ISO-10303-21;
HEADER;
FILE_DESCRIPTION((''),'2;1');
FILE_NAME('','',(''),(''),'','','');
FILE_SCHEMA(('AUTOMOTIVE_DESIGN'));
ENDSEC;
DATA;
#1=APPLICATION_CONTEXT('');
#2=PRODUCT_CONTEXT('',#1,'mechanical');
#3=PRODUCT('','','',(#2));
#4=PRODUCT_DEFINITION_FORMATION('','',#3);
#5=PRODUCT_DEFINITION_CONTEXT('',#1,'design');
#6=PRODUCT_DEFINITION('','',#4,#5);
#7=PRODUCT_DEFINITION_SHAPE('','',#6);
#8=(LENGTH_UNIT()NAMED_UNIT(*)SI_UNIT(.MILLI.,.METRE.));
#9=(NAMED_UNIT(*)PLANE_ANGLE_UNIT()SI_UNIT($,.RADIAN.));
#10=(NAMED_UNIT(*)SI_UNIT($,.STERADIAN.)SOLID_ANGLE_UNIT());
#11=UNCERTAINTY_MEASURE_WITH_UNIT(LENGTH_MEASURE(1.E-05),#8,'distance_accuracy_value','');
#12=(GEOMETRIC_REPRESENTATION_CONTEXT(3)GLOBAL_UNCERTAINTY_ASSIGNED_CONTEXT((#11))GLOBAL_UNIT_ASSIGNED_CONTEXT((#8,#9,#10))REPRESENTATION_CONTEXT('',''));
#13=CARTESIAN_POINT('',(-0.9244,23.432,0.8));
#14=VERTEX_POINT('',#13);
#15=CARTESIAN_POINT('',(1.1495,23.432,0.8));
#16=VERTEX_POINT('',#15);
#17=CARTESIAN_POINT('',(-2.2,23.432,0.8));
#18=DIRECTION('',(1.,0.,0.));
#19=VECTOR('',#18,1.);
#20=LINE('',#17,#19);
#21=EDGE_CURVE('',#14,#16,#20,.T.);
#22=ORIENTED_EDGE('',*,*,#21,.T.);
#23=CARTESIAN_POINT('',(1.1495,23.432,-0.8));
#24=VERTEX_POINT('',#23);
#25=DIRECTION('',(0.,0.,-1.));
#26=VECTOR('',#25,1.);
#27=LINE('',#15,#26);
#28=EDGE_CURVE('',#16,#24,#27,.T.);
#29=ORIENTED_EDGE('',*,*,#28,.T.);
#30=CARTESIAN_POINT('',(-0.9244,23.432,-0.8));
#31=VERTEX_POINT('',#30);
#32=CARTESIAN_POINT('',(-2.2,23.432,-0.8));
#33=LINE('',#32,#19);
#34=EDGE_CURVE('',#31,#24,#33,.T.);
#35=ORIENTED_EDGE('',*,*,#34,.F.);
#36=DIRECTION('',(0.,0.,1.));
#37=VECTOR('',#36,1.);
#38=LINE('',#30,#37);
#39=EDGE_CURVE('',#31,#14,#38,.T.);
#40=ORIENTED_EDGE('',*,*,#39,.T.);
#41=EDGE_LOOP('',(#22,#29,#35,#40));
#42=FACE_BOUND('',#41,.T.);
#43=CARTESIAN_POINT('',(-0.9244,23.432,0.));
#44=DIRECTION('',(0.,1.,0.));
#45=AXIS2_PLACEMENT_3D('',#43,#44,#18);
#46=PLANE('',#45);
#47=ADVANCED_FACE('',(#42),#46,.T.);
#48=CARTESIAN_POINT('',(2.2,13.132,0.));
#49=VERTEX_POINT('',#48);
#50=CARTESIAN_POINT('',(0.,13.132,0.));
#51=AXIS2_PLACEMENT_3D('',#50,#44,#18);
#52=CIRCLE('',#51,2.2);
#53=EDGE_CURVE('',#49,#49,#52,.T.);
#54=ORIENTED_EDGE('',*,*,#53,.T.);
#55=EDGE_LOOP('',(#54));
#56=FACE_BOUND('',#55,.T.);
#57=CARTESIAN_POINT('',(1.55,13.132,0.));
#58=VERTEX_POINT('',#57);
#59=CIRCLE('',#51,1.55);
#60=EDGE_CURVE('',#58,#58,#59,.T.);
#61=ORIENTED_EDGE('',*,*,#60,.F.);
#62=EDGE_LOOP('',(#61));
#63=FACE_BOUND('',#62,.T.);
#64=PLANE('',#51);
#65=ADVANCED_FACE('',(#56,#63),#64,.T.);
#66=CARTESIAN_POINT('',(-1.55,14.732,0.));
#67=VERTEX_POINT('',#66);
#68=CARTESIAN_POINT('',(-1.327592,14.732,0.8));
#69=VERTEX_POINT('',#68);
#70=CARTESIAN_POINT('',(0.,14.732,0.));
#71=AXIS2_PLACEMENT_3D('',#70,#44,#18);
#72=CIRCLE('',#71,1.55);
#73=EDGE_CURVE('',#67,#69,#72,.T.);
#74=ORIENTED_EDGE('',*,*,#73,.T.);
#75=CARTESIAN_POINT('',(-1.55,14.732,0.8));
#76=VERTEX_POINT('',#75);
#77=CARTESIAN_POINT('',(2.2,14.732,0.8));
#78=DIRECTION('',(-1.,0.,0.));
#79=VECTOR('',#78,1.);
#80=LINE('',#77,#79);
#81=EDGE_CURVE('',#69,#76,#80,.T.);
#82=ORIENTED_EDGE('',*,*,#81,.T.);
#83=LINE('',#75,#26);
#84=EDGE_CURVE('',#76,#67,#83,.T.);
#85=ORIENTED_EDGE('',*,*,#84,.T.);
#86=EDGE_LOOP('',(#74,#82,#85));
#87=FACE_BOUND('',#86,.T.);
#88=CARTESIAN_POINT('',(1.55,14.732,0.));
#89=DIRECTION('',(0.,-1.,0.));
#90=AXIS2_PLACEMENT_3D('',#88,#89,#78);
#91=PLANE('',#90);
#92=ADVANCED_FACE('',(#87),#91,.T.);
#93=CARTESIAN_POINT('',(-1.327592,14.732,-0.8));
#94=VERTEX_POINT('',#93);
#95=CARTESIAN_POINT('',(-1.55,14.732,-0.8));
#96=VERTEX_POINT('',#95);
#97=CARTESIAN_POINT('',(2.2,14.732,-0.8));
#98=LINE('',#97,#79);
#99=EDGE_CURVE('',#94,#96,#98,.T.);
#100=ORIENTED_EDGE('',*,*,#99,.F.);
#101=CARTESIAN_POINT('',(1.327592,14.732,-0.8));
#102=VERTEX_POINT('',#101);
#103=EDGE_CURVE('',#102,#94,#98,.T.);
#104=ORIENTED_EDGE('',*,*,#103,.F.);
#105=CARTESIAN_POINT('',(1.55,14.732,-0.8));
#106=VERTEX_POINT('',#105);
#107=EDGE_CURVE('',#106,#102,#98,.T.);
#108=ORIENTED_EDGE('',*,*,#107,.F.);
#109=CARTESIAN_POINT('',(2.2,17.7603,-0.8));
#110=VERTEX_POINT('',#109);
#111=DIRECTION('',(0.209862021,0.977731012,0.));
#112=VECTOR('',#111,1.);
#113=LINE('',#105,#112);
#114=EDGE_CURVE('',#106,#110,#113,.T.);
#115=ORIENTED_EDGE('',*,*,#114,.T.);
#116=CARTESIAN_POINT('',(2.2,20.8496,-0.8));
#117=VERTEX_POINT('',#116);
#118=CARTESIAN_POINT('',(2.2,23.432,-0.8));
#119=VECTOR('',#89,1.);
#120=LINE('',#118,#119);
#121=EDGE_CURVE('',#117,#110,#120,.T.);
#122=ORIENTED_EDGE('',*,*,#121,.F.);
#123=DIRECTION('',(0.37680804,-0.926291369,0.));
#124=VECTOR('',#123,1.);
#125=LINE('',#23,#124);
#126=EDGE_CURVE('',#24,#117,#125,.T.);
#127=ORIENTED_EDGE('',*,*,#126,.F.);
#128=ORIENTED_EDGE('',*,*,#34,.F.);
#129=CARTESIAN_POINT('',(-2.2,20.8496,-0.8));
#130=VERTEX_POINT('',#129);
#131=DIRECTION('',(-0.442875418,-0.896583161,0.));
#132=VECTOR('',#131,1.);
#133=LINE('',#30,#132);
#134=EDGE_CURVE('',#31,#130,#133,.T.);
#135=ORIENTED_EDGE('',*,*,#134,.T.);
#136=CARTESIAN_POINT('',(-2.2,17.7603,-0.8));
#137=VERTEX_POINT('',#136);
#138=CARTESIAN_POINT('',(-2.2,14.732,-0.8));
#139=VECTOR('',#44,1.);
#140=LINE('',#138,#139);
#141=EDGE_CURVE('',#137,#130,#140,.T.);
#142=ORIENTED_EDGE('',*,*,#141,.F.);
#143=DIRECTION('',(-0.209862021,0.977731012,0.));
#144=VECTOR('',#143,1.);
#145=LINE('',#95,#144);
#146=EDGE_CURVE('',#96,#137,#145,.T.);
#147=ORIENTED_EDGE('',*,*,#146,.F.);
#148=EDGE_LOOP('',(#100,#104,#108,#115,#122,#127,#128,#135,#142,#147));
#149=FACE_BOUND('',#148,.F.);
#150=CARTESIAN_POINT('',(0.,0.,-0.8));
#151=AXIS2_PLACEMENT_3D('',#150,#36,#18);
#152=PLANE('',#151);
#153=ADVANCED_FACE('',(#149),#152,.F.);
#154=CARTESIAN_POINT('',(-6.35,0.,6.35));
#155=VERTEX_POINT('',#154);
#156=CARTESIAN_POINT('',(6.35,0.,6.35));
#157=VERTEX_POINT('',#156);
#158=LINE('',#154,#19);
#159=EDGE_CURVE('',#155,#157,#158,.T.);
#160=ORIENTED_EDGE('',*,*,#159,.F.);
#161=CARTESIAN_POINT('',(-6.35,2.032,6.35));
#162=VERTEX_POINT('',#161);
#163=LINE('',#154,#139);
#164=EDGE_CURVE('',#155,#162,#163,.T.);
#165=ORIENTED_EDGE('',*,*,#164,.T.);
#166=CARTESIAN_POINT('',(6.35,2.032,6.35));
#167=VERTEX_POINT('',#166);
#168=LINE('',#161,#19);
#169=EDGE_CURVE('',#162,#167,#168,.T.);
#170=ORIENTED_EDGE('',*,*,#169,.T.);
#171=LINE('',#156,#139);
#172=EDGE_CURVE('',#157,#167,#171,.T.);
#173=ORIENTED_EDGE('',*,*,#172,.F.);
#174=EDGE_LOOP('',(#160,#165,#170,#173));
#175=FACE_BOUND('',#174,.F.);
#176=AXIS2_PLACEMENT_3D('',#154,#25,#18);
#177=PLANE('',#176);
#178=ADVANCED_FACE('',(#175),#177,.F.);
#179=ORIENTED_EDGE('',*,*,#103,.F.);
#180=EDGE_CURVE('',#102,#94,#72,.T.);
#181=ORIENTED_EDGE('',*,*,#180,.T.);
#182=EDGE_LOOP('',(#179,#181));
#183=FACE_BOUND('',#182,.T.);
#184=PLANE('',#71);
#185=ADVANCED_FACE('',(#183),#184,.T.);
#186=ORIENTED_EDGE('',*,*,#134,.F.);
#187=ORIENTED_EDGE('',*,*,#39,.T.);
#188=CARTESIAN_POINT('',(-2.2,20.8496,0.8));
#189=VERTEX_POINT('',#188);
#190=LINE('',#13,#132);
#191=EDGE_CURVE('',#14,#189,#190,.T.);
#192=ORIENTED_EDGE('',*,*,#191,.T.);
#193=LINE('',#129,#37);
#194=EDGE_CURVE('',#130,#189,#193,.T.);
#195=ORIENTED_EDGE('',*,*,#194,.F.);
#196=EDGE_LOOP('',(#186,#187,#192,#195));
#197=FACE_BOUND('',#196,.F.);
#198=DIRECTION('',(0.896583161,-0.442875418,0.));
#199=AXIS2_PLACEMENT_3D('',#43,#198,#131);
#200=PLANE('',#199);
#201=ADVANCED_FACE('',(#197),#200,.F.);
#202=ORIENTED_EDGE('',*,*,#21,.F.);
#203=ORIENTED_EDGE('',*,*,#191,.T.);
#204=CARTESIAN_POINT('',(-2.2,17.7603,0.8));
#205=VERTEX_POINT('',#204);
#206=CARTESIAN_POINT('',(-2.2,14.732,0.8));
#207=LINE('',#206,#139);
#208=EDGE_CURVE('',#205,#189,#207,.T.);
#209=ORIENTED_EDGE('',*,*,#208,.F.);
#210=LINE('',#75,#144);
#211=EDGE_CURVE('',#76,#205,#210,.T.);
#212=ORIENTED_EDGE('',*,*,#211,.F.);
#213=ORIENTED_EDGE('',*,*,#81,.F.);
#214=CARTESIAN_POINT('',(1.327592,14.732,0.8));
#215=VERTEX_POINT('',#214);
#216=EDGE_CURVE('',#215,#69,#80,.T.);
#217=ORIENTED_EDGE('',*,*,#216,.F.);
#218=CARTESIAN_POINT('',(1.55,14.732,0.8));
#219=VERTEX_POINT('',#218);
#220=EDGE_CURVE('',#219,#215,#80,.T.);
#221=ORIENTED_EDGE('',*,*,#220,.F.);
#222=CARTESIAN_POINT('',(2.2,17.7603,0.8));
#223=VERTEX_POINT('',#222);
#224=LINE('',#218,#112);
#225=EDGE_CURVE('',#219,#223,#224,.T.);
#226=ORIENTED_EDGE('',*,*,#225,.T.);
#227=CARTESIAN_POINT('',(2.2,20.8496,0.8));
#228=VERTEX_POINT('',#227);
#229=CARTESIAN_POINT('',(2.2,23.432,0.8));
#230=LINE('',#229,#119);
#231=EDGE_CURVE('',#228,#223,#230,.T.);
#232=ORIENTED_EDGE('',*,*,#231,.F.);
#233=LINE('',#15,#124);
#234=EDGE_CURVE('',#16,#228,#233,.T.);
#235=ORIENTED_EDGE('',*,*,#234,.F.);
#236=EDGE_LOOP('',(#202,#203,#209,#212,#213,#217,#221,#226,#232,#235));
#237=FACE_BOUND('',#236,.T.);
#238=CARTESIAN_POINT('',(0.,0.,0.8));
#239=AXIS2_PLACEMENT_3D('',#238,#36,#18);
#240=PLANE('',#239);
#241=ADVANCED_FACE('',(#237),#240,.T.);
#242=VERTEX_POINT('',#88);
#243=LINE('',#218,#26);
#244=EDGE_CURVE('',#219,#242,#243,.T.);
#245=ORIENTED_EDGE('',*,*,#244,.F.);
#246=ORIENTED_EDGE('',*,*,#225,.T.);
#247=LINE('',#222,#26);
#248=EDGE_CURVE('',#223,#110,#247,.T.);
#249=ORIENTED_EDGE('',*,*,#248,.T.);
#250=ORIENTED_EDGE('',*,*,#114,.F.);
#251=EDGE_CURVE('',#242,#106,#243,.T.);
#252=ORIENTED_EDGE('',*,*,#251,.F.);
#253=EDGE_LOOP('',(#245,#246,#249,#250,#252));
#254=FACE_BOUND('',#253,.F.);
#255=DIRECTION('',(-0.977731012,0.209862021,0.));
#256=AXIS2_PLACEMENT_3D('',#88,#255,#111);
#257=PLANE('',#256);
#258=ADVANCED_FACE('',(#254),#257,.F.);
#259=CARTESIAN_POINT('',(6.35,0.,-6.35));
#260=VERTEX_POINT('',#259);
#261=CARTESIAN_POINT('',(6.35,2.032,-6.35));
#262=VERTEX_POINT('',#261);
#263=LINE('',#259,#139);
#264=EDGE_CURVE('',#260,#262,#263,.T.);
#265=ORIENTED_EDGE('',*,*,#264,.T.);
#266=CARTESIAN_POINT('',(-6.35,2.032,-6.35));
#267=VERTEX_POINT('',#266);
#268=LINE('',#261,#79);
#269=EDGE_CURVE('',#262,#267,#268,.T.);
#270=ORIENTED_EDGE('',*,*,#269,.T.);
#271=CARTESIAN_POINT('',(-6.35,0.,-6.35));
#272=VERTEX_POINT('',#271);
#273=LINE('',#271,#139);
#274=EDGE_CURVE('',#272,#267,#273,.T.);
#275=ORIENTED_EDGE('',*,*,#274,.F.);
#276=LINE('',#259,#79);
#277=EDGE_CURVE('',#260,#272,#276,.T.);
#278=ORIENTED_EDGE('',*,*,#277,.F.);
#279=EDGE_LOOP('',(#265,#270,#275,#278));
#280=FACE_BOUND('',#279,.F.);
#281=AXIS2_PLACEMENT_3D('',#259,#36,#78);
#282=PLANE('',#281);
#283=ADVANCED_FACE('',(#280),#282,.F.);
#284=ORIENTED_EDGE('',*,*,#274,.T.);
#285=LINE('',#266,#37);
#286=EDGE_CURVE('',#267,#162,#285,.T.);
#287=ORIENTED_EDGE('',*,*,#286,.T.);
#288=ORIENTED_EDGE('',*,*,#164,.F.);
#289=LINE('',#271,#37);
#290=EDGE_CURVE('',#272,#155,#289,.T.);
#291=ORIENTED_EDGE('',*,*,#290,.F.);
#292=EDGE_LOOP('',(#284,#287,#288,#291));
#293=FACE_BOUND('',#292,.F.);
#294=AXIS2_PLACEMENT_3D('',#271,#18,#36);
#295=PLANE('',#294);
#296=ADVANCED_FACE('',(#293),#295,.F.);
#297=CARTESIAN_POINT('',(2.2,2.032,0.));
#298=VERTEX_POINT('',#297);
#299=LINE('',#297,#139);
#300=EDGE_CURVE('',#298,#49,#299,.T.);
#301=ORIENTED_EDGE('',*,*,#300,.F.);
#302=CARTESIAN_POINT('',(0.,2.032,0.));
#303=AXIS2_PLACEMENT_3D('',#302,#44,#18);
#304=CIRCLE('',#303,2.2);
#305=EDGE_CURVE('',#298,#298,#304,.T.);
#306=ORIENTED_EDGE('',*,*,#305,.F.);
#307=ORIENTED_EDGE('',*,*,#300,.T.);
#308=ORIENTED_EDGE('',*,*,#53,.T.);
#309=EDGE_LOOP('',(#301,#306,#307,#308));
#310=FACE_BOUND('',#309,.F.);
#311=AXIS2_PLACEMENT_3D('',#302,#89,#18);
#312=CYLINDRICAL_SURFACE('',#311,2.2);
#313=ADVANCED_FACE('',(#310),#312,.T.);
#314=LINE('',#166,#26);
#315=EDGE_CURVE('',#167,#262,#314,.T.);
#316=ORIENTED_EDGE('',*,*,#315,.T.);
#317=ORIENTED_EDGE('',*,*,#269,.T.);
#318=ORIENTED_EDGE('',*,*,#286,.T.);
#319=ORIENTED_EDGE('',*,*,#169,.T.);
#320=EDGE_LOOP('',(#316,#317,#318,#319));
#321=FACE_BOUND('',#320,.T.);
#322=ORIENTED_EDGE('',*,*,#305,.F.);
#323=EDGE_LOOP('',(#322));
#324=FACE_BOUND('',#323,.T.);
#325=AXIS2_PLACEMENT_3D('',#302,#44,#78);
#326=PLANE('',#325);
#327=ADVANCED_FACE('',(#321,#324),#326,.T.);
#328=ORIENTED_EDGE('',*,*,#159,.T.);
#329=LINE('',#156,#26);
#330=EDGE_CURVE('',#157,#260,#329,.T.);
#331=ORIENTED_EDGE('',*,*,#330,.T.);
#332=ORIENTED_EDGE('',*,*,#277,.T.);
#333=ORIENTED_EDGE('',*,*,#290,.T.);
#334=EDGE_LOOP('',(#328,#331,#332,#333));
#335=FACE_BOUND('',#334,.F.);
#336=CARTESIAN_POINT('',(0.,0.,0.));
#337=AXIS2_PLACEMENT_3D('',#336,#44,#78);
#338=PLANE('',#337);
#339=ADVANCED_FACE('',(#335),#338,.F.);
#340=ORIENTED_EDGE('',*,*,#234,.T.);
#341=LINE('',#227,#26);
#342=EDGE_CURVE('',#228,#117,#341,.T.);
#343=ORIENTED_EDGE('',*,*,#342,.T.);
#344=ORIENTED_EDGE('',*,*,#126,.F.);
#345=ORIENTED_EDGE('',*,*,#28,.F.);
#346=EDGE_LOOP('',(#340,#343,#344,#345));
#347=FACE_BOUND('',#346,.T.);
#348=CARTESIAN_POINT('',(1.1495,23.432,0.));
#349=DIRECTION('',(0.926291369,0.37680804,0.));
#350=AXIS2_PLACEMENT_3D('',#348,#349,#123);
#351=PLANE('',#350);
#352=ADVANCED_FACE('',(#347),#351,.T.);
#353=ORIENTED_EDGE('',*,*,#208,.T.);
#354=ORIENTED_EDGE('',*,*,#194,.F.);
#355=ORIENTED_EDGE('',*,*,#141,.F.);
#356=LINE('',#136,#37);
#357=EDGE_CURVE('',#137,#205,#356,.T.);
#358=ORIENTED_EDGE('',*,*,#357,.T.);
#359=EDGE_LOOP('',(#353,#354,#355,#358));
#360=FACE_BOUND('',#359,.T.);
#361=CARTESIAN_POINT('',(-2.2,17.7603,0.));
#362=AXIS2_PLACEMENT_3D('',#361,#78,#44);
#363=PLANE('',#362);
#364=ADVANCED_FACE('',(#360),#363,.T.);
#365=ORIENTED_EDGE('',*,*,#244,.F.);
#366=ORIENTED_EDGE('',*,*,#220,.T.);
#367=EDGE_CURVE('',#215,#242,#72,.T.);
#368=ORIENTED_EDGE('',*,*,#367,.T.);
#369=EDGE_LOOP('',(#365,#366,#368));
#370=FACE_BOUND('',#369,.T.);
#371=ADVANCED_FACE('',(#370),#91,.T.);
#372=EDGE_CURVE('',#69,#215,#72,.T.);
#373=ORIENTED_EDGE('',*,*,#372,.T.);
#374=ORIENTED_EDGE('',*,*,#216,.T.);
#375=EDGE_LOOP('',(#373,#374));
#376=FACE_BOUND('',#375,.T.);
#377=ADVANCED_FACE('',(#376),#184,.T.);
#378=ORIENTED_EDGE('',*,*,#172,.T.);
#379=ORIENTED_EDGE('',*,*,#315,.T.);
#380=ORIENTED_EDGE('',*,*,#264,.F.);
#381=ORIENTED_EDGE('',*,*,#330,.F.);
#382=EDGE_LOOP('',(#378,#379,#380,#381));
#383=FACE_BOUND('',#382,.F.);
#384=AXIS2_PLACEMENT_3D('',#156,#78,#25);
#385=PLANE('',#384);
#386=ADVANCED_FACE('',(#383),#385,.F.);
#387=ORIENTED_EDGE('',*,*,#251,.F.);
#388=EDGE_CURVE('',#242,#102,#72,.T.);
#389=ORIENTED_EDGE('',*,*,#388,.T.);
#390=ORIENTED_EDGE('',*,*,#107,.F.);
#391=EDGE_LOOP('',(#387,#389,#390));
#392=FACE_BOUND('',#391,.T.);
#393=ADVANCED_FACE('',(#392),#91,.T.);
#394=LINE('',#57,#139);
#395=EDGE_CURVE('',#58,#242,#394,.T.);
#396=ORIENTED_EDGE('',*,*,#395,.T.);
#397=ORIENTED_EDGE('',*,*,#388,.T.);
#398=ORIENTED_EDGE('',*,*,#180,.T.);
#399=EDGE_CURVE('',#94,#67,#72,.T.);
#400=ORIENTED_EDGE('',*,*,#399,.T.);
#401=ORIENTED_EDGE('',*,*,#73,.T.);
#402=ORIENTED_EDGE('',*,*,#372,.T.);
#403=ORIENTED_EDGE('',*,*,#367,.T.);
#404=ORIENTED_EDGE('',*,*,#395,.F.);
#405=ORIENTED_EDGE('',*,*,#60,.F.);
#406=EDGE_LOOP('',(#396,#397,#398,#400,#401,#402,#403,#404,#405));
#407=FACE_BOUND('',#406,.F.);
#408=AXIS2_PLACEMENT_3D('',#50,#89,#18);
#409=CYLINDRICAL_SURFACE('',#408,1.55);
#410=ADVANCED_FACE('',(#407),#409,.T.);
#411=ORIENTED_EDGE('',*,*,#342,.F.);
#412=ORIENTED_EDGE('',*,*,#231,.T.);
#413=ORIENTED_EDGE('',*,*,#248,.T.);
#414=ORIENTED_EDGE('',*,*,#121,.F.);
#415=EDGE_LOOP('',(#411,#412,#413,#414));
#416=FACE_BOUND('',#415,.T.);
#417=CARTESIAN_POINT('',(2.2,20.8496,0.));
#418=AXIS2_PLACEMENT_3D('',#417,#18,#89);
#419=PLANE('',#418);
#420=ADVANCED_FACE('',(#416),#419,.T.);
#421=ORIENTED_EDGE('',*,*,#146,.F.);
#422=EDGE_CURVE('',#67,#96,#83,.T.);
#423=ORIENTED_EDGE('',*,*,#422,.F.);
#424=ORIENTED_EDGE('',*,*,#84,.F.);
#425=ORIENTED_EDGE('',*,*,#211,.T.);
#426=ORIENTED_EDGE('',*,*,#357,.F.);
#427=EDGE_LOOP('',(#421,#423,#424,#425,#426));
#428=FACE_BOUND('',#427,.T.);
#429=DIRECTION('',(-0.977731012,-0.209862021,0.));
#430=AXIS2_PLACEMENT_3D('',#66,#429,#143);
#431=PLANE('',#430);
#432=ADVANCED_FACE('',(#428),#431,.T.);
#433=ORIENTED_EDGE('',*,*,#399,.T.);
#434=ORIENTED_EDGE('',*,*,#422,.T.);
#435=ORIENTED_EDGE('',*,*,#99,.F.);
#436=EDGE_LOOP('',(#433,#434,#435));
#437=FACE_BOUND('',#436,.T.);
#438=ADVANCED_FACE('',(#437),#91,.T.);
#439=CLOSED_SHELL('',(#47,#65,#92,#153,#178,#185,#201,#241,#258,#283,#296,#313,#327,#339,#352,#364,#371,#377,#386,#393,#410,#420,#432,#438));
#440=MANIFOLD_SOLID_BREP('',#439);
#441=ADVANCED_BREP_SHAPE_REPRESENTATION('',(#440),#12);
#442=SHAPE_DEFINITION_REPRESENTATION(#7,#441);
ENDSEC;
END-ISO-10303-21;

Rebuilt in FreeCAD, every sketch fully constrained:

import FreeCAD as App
import Part
import Sketcher

V = App.Vector
Q = App.Units.Quantity

doc = App.newDocument("Part")
body = doc.addObject("PartDesign::Body", "Body")

sketch1 = body.newObject("Sketcher::SketchObject", "Sketch")
sketch1.AttachmentSupport = (doc.getObject("XZ_Plane"), [""])
sketch1.MapMode = "FlatFace"
sketch1.addGeometry([
    Part.LineSegment(V(-6, -6, 0), V(-6, 6, 0)),
    Part.LineSegment(V(-6, 6, 0), V(6, 6, 0)),
    Part.LineSegment(V(6, 6, 0), V(6, -6, 0)),
    Part.LineSegment(V(6, -6, 0), V(-6, -6, 0)),
], False)
sketch1.addConstraint([
    Sketcher.Constraint("Coincident", 0, 2, 1, 1),
    Sketcher.Constraint("Coincident", 1, 2, 2, 1),
    Sketcher.Constraint("Coincident", 2, 2, 3, 1),
    Sketcher.Constraint("Coincident", 3, 2, 0, 1),
    Sketcher.Constraint("Vertical", 0),
    Sketcher.Constraint("Horizontal", 1),
    Sketcher.Constraint("Vertical", 2),
    Sketcher.Constraint("Horizontal", 3),
    Sketcher.Constraint("Symmetric", 0, 2, 2, 2, -1, 1),
    Sketcher.Constraint("Equal", 3, 0),
    Sketcher.Constraint("DistanceX", 1, 1, 1, 2, Q("0.5 in")),
])
pad1 = body.newObject("PartDesign::Pad", "Pad")
pad1.Profile = sketch1
pad1.Length = Q("0.08 in")
pad1.Reversed = True

sketch2 = body.newObject("Sketcher::SketchObject", "Sketch001")
sketch2.AttachmentSupport = (doc.getObject("XZ_Plane"), [""])
sketch2.MapMode = "FlatFace"
sketch2.AttachmentOffset = App.Placement(V(0, 0, -0.08 * 25.4), App.Rotation())
sketch2.addGeometry(Part.Circle(V(0, 0, 0), V(0, 0, 1), 2.2), False)
sketch2.addConstraint([
    Sketcher.Constraint("Coincident", 0, 3, -1, 1),
    Sketcher.Constraint("Diameter", 0, Q("4.4 mm")),
])
pad2 = body.newObject("PartDesign::Pad", "Pad001")
pad2.Profile = sketch2
pad2.Length = Q("0.4370079 in")
pad2.Reversed = True

sketch3 = body.newObject("Sketcher::SketchObject", "Sketch002")
sketch3.AttachmentSupport = (doc.getObject("XZ_Plane"), [""])
sketch3.MapMode = "FlatFace"
sketch3.AttachmentOffset = App.Placement(V(0, 0, -0.5170079 * 25.4), App.Rotation())
sketch3.addGeometry(Part.Circle(V(0, 0, 0), V(0, 0, 1), 1.6), False)
sketch3.addConstraint([
    Sketcher.Constraint("Coincident", 0, 3, -1, 1),
    Sketcher.Constraint("Diameter", 0, Q("3.1 mm")),
])
pad3 = body.newObject("PartDesign::Pad", "Pad002")
pad3.Profile = sketch3
pad3.Length = Q("0.0629921 in")
pad3.Reversed = True

sketch4 = body.newObject("Sketcher::SketchObject", "Sketch003")
sketch4.AttachmentSupport = (doc.getObject("XY_Plane"), [""])
sketch4.MapMode = "FlatFace"
sketch4.addGeometry([
    Part.LineSegment(V(1.1, 23.4, 0), V(-0.9, 23.4, 0)),
    Part.LineSegment(V(-0.9, 23.4, 0), V(-2.2, 20.8, 0)),
    Part.LineSegment(V(-2.2, 20.8, 0), V(-2.2, 17.8, 0)),
    Part.LineSegment(V(-2.2, 17.8, 0), V(-1.6, 14.7, 0)),
    Part.LineSegment(V(-1.6, 14.7, 0), V(1.6, 14.7, 0)),
    Part.LineSegment(V(1.6, 14.7, 0), V(2.2, 17.8, 0)),
    Part.LineSegment(V(2.2, 17.8, 0), V(2.2, 20.8, 0)),
    Part.LineSegment(V(2.2, 20.8, 0), V(1.1, 23.4, 0)),
], False)
sketch4.addConstraint([
    Sketcher.Constraint("Coincident", 0, 2, 1, 1),
    Sketcher.Constraint("Coincident", 1, 2, 2, 1),
    Sketcher.Constraint("Coincident", 2, 2, 3, 1),
    Sketcher.Constraint("Coincident", 3, 2, 4, 1),
    Sketcher.Constraint("Coincident", 4, 2, 5, 1),
    Sketcher.Constraint("Coincident", 5, 2, 6, 1),
    Sketcher.Constraint("Coincident", 6, 2, 7, 1),
    Sketcher.Constraint("Coincident", 7, 2, 0, 1),
    Sketcher.Constraint("Horizontal", 0),
    Sketcher.Constraint("Vertical", 2),
    Sketcher.Constraint("Horizontal", 4),
    Sketcher.Constraint("Vertical", 6),
    Sketcher.Constraint("Symmetric", 2, 2, 5, 2, -2),
    Sketcher.Constraint("Horizontal", 1, 2, 6, 2),
    Sketcher.Constraint("Equal", 3, 5),
    Sketcher.Constraint("DistanceY", -1, 1, 3, 2, Q("0.58 in")),
    Sketcher.Constraint("DistanceX", 1, 2, -1, 1, Q("2.2 mm")),
    Sketcher.Constraint("DistanceY", 3, 2, 0, 2, Q("8.7 mm")),
    Sketcher.Constraint("DistanceX", 0, 2, 5, 2, Q("0.123 in")),
    Sketcher.Constraint("Distance", 1, Q("0.1134 in")),
    Sketcher.Constraint("DistanceX", 0, 2, 0, 1, Q("2.074 mm")),
    Sketcher.Constraint("DistanceX", 4, 1, 4, 2, Q("3.1 mm")),
    Sketcher.Constraint("DistanceY", 2, 2, 2, 1, Q("3.0893 mm")),
])
pad4 = body.newObject("PartDesign::Pad", "Pad003")
pad4.Profile = sketch4
pad4.Length = Q("0.0629921 in")
pad4.Midplane = True

doc.recompute()
